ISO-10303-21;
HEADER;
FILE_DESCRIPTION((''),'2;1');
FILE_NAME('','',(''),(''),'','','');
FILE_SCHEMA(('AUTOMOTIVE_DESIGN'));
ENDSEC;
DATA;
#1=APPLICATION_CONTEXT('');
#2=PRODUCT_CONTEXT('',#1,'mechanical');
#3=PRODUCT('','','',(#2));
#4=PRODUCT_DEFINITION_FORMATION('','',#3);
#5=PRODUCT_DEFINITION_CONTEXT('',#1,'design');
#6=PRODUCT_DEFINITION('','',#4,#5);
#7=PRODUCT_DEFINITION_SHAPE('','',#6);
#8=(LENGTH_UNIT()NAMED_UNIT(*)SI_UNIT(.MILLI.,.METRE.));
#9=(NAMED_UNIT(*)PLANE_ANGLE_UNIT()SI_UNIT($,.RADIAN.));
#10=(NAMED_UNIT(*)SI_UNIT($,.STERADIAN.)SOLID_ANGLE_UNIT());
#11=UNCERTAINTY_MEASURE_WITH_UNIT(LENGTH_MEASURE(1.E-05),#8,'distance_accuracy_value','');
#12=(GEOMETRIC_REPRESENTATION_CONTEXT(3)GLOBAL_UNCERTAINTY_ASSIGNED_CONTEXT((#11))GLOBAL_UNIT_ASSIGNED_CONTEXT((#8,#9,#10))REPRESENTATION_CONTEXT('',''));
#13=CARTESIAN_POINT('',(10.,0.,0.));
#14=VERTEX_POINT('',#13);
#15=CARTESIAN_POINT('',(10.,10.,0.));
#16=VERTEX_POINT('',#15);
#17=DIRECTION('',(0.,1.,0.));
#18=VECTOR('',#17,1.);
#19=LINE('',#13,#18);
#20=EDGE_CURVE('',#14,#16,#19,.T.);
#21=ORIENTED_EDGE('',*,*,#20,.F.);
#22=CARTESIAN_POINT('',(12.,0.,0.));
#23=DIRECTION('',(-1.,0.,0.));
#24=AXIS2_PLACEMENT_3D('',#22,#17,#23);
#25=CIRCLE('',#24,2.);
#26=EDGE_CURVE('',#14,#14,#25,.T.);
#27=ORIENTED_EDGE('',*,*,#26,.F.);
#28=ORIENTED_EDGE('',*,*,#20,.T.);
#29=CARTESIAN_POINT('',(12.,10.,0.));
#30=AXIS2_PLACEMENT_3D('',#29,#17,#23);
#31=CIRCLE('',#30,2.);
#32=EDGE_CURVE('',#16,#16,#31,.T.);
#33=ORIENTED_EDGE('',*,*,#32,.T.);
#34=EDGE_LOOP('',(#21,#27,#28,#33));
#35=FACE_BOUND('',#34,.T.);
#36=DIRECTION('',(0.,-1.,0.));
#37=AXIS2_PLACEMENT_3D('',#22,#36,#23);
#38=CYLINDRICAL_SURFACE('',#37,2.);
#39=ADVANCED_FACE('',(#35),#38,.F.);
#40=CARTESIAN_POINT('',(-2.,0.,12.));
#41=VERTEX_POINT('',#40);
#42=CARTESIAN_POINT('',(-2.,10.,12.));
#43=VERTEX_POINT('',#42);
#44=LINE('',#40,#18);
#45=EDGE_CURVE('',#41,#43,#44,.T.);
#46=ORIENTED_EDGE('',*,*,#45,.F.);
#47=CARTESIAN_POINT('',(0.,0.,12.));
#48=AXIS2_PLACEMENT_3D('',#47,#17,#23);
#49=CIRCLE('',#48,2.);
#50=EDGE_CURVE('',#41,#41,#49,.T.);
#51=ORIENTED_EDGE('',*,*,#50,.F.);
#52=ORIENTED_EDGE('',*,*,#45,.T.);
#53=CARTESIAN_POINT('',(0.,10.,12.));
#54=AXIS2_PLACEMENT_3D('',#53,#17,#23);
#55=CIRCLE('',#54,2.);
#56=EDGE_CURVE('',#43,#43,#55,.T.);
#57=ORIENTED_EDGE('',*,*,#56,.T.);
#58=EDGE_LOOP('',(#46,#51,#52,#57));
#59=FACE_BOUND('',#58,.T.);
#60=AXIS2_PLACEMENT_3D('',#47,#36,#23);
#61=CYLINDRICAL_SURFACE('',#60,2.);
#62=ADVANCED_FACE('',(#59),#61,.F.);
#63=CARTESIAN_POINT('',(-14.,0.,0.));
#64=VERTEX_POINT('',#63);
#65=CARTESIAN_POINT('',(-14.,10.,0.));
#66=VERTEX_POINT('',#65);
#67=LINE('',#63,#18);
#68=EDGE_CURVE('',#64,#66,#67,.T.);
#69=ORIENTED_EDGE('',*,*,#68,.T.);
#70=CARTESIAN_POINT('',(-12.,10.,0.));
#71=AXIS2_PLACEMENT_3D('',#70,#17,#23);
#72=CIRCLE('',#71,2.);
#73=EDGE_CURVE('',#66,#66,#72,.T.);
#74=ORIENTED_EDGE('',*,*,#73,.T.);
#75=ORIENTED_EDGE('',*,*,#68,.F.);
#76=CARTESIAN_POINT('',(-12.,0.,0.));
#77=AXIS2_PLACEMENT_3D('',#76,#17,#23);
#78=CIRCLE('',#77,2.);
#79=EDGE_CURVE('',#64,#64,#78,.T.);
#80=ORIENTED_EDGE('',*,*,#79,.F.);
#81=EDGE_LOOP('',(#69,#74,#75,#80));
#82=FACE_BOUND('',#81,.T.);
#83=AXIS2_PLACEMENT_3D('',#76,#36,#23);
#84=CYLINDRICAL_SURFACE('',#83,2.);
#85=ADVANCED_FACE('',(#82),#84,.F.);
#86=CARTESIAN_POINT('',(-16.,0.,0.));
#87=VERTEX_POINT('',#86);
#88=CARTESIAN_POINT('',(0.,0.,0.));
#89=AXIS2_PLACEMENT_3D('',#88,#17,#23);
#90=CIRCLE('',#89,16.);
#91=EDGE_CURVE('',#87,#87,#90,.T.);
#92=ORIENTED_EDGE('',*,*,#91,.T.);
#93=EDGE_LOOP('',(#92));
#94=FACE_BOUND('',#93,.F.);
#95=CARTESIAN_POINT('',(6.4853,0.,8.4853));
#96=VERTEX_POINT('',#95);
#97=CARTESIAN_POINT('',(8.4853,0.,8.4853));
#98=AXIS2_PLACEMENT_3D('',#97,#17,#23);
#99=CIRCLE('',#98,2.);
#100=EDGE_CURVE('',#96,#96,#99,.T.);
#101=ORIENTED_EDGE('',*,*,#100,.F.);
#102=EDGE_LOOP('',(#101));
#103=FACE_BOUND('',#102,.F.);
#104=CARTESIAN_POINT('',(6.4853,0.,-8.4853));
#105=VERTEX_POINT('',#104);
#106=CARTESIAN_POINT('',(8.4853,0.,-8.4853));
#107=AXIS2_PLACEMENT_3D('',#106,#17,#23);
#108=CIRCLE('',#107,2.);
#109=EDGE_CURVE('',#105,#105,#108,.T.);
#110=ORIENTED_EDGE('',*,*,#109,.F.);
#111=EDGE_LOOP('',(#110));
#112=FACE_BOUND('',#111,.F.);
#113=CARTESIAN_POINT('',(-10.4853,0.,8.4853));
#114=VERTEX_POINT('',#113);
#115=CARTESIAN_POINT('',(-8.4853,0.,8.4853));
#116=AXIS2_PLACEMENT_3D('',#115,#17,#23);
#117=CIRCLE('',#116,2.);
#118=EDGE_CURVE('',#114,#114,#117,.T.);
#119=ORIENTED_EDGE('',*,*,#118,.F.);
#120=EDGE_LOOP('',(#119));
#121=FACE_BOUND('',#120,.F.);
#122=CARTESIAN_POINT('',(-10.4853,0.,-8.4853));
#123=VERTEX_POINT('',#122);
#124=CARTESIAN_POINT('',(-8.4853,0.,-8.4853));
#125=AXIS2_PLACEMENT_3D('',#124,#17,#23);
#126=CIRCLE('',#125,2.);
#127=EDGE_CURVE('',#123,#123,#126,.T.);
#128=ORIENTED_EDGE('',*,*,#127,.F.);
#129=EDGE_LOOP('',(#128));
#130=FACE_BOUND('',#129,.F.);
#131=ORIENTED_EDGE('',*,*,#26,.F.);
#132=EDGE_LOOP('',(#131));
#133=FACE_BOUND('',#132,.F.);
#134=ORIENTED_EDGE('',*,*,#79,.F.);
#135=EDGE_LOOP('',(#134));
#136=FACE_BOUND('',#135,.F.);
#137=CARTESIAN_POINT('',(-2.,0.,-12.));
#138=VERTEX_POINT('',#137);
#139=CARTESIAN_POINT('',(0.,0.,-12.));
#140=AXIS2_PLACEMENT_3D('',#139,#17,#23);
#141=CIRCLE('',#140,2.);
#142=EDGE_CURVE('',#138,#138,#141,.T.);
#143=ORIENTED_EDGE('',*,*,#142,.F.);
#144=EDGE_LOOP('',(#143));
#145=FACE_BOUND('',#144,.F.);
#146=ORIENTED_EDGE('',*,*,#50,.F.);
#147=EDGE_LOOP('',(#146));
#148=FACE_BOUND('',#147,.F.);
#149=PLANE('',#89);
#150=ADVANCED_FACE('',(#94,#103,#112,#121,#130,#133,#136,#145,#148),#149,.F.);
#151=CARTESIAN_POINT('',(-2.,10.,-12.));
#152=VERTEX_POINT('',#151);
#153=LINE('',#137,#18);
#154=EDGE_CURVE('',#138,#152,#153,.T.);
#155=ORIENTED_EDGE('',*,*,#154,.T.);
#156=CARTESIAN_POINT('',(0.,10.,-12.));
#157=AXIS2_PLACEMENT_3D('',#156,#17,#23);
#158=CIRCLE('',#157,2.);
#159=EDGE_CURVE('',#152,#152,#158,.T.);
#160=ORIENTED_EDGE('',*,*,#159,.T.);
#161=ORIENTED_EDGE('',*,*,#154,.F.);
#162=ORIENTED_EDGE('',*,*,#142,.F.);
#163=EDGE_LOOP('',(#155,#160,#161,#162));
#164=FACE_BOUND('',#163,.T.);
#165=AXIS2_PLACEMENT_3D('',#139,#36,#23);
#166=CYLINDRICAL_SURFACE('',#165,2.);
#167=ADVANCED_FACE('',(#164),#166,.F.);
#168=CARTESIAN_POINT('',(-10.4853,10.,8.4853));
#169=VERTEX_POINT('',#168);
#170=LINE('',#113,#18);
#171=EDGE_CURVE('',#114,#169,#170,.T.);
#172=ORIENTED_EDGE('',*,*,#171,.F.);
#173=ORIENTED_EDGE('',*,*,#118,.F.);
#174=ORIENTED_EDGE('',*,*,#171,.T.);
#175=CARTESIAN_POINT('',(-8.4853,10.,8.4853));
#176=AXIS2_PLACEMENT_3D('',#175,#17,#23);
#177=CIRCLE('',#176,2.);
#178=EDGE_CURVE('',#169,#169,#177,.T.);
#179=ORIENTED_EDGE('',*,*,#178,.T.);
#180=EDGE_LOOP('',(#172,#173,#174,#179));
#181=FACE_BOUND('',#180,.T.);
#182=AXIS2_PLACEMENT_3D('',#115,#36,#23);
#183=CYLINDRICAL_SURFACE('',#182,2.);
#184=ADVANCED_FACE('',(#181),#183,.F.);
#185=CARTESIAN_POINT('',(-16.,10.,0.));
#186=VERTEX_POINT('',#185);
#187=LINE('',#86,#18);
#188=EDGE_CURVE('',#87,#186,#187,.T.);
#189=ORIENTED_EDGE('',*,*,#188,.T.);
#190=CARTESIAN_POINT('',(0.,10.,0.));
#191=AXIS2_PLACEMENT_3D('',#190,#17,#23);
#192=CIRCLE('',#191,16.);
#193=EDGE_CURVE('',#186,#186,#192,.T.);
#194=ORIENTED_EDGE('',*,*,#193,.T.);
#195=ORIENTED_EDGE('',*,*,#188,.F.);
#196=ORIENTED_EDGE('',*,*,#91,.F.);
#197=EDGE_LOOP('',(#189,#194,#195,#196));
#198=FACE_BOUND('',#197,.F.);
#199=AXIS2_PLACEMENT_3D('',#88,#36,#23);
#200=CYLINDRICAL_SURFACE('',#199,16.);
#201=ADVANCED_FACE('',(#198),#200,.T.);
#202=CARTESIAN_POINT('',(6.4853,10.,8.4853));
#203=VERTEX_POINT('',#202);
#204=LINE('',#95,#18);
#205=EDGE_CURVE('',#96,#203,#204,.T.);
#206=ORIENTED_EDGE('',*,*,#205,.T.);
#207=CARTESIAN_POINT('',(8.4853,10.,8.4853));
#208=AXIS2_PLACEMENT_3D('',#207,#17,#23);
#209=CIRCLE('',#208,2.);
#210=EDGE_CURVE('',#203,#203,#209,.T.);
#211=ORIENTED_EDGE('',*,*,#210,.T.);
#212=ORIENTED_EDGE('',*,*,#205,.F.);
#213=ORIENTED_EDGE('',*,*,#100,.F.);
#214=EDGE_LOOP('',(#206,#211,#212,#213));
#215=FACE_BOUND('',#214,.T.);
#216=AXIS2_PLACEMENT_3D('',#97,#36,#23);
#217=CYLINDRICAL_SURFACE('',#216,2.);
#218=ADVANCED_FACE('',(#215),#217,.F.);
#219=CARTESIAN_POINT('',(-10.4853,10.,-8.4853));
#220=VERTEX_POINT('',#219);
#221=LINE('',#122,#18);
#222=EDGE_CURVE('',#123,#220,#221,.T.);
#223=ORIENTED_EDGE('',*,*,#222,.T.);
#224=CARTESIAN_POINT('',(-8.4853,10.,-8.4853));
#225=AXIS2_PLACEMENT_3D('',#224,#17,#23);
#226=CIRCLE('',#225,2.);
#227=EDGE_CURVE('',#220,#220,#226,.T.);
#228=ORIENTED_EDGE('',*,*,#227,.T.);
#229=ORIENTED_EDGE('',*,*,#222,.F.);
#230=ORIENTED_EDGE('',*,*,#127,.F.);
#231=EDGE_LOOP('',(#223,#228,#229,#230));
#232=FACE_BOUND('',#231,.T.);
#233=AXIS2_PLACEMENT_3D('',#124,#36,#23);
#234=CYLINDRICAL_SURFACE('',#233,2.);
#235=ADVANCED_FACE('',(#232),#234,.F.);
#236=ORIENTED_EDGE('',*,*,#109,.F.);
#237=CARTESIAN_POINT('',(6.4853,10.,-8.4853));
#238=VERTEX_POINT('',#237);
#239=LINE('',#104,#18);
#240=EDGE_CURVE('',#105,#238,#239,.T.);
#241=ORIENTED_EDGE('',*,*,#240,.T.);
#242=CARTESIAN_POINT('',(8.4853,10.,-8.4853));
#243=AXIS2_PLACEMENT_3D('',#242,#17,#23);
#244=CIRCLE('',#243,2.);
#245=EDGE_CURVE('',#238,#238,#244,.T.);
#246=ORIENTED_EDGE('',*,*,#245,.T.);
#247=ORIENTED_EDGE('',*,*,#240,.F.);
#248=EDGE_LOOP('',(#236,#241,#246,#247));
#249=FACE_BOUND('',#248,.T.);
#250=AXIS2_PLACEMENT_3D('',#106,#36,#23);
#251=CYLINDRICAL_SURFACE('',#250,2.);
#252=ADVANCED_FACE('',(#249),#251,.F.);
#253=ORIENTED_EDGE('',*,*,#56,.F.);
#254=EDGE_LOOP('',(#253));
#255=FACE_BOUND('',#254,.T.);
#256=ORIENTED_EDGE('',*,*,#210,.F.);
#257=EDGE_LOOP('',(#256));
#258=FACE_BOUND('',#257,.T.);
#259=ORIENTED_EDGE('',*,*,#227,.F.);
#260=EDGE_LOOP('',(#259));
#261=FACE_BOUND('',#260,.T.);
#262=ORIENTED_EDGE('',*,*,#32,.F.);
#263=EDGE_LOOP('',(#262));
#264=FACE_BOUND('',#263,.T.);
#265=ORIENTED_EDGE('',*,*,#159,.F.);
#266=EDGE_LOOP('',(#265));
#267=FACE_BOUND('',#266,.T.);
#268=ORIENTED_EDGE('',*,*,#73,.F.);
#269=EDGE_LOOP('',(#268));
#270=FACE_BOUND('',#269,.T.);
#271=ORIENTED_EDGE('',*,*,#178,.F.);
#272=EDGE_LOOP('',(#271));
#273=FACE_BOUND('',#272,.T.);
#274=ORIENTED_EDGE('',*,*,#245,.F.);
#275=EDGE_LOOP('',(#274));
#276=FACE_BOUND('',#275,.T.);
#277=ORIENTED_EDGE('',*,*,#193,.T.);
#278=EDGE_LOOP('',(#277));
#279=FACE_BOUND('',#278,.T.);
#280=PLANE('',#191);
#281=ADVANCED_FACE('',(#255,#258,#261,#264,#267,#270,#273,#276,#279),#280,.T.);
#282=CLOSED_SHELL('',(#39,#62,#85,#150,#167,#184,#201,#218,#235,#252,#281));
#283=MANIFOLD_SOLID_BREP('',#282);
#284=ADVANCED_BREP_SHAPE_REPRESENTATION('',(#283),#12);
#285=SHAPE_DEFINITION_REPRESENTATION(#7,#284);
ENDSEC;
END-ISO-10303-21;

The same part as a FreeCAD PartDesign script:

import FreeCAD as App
import Part
import Sketcher
from FreeCAD import Vector

doc = App.newDocument("Part")
body = doc.addObject("PartDesign::Body", "Body")

# Sketch on XZ plane
sketch1 = doc.addObject("Sketcher::SketchObject", "Sketch")
body.addObject(sketch1)
sketch1.AttachmentSupport = (doc.XZ_Plane, [""])
sketch1.MapMode = "FlatFace"
sketch1.addGeometry([
    Part.Circle(Vector(0, 0, 0), Vector(0, 0, 1), 16),  # 0
    Part.Circle(Vector(8.5, -8.5, 0), Vector(0, 0, 1), 2),  # 1
    Part.Circle(Vector(0, -12, 0), Vector(0, 0, 1), 2),  # 2
    Part.Circle(Vector(-8.5, -8.5, 0), Vector(0, 0, 1), 2),  # 3
    Part.Circle(Vector(12, 0, 0), Vector(0, 0, 1), 2),  # 4
    Part.Circle(Vector(8.5, 8.5, 0), Vector(0, 0, 1), 2),  # 5
    Part.Circle(Vector(-12, 0, 0), Vector(0, 0, 1), 2),  # 6
    Part.Circle(Vector(0, 12, 0), Vector(0, 0, 1), 2),  # 7
    Part.Circle(Vector(-8.5, 8.5, 0), Vector(0, 0, 1), 2),  # 8
], False)
sketch1.addConstraint([
    Sketcher.Constraint("Coincident", 0, 3, -1, 1),
    Sketcher.Constraint("Equal", 1, 2),
    Sketcher.Constraint("Equal", 2, 3),
    Sketcher.Constraint("Equal", 3, 4),
    Sketcher.Constraint("Equal", 4, 5),
    Sketcher.Constraint("Equal", 5, 6),
    Sketcher.Constraint("Equal", 6, 7),
    Sketcher.Constraint("Equal", 7, 8),
    Sketcher.Constraint("Symmetric", 3, 3, 5, 3, -1, 1),
    Sketcher.Constraint("Symmetric", 4, 3, 6, 3, -1, 1),
    Sketcher.Constraint("Symmetric", 2, 3, 7, 3, -1, 1),
    Sketcher.Constraint("Symmetric", 1, 3, 8, 3, -1, 1),
    Sketcher.Constraint("Symmetric", 1, 3, 3, 3, -2),
    Sketcher.Constraint("PointOnObject", 2, 3, -2),
    Sketcher.Constraint("PointOnObject", 4, 3, -1),
    Sketcher.Constraint("Diameter", 0, 32.0),
    Sketcher.Constraint("Diameter", 1, 4.0),
    Sketcher.Constraint("DistanceY", 2, 3, -1, 1, 12.0),
    Sketcher.Constraint("DistanceX", -1, 1, 4, 3, 12.0),
    Sketcher.Constraint("DistanceX", -1, 1, 1, 3, 8.4853),
    Sketcher.Constraint("DistanceY", 1, 3, -1, 1, 8.4853),
])
pad1 = doc.addObject("PartDesign::Pad", "Pad")
body.addObject(pad1)
pad1.Profile = sketch1
pad1.Length = 10
pad1.Reversed = True

doc.recompute()
